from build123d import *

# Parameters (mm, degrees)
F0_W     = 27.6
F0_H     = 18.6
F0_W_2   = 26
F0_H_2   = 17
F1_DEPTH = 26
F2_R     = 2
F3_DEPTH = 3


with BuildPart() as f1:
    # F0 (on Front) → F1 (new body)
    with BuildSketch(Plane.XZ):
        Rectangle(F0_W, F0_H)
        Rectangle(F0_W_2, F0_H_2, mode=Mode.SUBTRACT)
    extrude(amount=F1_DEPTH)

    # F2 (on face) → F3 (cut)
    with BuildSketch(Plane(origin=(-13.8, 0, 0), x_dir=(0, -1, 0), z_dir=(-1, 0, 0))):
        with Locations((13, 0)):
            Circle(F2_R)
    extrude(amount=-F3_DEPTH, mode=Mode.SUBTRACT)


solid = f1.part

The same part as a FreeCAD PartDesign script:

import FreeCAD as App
import Part
import Sketcher
from FreeCAD import Vector


def add_polygon(sketch, points):
    """Adds a closed chain of lines whose ends are joined by coincident constraints."""
    first, n = sketch.GeometryCount, len(points)
    for a, b in zip(points, points[1:] + points[:1]):
        sketch.addGeometry(Part.LineSegment(App.Vector(*a, 0), App.Vector(*b, 0)), False)
    for i in range(n):
        sketch.addConstraint(Sketcher.Constraint("Coincident", first + i, 2, first + (i + 1) % n, 1))

doc = App.newDocument("Part")
body = doc.addObject("PartDesign::Body", "Body")

sketch1 = body.newObject("Sketcher::SketchObject", "Sketch")
sketch1.AttachmentSupport = (doc.getObject("XZ_Plane"), [""])
sketch1.MapMode = "FlatFace"
add_polygon(sketch1, [(-14, 9), (-14, -9), (14, -9), (14, 9)])
add_polygon(sketch1, [(13, -8), (-13, -8), (-13, 8), (13, 8)])
sketch1.addConstraint(Sketcher.Constraint("Vertical", 0))
sketch1.addConstraint(Sketcher.Constraint("Horizontal", 1))
sketch1.addConstraint(Sketcher.Constraint("Vertical", 2))
sketch1.addConstraint(Sketcher.Constraint("Horizontal", 3))
sketch1.addConstraint(Sketcher.Constraint("Horizontal", 4))
sketch1.addConstraint(Sketcher.Constraint("Vertical", 5))
sketch1.addConstraint(Sketcher.Constraint("Horizontal", 6))
sketch1.addConstraint(Sketcher.Constraint("Vertical", 7))
sketch1.addConstraint(Sketcher.Constraint("Symmetric", 0, 2, 2, 2, -1, 1))
sketch1.addConstraint(Sketcher.Constraint("Symmetric", 4, 2, 6, 2, -1, 1))
sketch1.addConstraint(Sketcher.Constraint("DistanceX", 4, 2, 4, 1, 26.0))
sketch1.addConstraint(Sketcher.Constraint("DistanceY", 5, 1, 5, 2, 17.0))
sketch1.addConstraint(Sketcher.Constraint("DistanceX", 1, 1, 1, 2, 27.6))
sketch1.addConstraint(Sketcher.Constraint("DistanceY", 0, 2, 0, 1, 18.6))
pad1 = body.newObject("PartDesign::Pad", "Pad")
pad1.Profile = sketch1
pad1.Length = 26

sketch2 = body.newObject("Sketcher::SketchObject", "Sketch001")
sketch2.AttachmentSupport = (doc.getObject("YZ_Plane"), [""])
sketch2.MapMode = "FlatFace"
sketch2.AttachmentOffset = App.Placement(Vector(0, 0, -13.8), App.Rotation())
sketch2.addGeometry(Part.Circle(Vector(-13, 0, 0), Vector(0, 0, 1), 2), False)
sketch2.addConstraint(Sketcher.Constraint("PointOnObject", 0, 3, -1))
sketch2.addConstraint(Sketcher.Constraint("Diameter", 0, 4.0))
sketch2.addConstraint(Sketcher.Constraint("DistanceX", 0, 3, -1, 1, 13.0))
pocket1 = body.newObject("PartDesign::Pocket", "Pocket")
pocket1.Profile = sketch2
pocket1.Length = 3
pocket1.Reversed = True

doc.recompute()
